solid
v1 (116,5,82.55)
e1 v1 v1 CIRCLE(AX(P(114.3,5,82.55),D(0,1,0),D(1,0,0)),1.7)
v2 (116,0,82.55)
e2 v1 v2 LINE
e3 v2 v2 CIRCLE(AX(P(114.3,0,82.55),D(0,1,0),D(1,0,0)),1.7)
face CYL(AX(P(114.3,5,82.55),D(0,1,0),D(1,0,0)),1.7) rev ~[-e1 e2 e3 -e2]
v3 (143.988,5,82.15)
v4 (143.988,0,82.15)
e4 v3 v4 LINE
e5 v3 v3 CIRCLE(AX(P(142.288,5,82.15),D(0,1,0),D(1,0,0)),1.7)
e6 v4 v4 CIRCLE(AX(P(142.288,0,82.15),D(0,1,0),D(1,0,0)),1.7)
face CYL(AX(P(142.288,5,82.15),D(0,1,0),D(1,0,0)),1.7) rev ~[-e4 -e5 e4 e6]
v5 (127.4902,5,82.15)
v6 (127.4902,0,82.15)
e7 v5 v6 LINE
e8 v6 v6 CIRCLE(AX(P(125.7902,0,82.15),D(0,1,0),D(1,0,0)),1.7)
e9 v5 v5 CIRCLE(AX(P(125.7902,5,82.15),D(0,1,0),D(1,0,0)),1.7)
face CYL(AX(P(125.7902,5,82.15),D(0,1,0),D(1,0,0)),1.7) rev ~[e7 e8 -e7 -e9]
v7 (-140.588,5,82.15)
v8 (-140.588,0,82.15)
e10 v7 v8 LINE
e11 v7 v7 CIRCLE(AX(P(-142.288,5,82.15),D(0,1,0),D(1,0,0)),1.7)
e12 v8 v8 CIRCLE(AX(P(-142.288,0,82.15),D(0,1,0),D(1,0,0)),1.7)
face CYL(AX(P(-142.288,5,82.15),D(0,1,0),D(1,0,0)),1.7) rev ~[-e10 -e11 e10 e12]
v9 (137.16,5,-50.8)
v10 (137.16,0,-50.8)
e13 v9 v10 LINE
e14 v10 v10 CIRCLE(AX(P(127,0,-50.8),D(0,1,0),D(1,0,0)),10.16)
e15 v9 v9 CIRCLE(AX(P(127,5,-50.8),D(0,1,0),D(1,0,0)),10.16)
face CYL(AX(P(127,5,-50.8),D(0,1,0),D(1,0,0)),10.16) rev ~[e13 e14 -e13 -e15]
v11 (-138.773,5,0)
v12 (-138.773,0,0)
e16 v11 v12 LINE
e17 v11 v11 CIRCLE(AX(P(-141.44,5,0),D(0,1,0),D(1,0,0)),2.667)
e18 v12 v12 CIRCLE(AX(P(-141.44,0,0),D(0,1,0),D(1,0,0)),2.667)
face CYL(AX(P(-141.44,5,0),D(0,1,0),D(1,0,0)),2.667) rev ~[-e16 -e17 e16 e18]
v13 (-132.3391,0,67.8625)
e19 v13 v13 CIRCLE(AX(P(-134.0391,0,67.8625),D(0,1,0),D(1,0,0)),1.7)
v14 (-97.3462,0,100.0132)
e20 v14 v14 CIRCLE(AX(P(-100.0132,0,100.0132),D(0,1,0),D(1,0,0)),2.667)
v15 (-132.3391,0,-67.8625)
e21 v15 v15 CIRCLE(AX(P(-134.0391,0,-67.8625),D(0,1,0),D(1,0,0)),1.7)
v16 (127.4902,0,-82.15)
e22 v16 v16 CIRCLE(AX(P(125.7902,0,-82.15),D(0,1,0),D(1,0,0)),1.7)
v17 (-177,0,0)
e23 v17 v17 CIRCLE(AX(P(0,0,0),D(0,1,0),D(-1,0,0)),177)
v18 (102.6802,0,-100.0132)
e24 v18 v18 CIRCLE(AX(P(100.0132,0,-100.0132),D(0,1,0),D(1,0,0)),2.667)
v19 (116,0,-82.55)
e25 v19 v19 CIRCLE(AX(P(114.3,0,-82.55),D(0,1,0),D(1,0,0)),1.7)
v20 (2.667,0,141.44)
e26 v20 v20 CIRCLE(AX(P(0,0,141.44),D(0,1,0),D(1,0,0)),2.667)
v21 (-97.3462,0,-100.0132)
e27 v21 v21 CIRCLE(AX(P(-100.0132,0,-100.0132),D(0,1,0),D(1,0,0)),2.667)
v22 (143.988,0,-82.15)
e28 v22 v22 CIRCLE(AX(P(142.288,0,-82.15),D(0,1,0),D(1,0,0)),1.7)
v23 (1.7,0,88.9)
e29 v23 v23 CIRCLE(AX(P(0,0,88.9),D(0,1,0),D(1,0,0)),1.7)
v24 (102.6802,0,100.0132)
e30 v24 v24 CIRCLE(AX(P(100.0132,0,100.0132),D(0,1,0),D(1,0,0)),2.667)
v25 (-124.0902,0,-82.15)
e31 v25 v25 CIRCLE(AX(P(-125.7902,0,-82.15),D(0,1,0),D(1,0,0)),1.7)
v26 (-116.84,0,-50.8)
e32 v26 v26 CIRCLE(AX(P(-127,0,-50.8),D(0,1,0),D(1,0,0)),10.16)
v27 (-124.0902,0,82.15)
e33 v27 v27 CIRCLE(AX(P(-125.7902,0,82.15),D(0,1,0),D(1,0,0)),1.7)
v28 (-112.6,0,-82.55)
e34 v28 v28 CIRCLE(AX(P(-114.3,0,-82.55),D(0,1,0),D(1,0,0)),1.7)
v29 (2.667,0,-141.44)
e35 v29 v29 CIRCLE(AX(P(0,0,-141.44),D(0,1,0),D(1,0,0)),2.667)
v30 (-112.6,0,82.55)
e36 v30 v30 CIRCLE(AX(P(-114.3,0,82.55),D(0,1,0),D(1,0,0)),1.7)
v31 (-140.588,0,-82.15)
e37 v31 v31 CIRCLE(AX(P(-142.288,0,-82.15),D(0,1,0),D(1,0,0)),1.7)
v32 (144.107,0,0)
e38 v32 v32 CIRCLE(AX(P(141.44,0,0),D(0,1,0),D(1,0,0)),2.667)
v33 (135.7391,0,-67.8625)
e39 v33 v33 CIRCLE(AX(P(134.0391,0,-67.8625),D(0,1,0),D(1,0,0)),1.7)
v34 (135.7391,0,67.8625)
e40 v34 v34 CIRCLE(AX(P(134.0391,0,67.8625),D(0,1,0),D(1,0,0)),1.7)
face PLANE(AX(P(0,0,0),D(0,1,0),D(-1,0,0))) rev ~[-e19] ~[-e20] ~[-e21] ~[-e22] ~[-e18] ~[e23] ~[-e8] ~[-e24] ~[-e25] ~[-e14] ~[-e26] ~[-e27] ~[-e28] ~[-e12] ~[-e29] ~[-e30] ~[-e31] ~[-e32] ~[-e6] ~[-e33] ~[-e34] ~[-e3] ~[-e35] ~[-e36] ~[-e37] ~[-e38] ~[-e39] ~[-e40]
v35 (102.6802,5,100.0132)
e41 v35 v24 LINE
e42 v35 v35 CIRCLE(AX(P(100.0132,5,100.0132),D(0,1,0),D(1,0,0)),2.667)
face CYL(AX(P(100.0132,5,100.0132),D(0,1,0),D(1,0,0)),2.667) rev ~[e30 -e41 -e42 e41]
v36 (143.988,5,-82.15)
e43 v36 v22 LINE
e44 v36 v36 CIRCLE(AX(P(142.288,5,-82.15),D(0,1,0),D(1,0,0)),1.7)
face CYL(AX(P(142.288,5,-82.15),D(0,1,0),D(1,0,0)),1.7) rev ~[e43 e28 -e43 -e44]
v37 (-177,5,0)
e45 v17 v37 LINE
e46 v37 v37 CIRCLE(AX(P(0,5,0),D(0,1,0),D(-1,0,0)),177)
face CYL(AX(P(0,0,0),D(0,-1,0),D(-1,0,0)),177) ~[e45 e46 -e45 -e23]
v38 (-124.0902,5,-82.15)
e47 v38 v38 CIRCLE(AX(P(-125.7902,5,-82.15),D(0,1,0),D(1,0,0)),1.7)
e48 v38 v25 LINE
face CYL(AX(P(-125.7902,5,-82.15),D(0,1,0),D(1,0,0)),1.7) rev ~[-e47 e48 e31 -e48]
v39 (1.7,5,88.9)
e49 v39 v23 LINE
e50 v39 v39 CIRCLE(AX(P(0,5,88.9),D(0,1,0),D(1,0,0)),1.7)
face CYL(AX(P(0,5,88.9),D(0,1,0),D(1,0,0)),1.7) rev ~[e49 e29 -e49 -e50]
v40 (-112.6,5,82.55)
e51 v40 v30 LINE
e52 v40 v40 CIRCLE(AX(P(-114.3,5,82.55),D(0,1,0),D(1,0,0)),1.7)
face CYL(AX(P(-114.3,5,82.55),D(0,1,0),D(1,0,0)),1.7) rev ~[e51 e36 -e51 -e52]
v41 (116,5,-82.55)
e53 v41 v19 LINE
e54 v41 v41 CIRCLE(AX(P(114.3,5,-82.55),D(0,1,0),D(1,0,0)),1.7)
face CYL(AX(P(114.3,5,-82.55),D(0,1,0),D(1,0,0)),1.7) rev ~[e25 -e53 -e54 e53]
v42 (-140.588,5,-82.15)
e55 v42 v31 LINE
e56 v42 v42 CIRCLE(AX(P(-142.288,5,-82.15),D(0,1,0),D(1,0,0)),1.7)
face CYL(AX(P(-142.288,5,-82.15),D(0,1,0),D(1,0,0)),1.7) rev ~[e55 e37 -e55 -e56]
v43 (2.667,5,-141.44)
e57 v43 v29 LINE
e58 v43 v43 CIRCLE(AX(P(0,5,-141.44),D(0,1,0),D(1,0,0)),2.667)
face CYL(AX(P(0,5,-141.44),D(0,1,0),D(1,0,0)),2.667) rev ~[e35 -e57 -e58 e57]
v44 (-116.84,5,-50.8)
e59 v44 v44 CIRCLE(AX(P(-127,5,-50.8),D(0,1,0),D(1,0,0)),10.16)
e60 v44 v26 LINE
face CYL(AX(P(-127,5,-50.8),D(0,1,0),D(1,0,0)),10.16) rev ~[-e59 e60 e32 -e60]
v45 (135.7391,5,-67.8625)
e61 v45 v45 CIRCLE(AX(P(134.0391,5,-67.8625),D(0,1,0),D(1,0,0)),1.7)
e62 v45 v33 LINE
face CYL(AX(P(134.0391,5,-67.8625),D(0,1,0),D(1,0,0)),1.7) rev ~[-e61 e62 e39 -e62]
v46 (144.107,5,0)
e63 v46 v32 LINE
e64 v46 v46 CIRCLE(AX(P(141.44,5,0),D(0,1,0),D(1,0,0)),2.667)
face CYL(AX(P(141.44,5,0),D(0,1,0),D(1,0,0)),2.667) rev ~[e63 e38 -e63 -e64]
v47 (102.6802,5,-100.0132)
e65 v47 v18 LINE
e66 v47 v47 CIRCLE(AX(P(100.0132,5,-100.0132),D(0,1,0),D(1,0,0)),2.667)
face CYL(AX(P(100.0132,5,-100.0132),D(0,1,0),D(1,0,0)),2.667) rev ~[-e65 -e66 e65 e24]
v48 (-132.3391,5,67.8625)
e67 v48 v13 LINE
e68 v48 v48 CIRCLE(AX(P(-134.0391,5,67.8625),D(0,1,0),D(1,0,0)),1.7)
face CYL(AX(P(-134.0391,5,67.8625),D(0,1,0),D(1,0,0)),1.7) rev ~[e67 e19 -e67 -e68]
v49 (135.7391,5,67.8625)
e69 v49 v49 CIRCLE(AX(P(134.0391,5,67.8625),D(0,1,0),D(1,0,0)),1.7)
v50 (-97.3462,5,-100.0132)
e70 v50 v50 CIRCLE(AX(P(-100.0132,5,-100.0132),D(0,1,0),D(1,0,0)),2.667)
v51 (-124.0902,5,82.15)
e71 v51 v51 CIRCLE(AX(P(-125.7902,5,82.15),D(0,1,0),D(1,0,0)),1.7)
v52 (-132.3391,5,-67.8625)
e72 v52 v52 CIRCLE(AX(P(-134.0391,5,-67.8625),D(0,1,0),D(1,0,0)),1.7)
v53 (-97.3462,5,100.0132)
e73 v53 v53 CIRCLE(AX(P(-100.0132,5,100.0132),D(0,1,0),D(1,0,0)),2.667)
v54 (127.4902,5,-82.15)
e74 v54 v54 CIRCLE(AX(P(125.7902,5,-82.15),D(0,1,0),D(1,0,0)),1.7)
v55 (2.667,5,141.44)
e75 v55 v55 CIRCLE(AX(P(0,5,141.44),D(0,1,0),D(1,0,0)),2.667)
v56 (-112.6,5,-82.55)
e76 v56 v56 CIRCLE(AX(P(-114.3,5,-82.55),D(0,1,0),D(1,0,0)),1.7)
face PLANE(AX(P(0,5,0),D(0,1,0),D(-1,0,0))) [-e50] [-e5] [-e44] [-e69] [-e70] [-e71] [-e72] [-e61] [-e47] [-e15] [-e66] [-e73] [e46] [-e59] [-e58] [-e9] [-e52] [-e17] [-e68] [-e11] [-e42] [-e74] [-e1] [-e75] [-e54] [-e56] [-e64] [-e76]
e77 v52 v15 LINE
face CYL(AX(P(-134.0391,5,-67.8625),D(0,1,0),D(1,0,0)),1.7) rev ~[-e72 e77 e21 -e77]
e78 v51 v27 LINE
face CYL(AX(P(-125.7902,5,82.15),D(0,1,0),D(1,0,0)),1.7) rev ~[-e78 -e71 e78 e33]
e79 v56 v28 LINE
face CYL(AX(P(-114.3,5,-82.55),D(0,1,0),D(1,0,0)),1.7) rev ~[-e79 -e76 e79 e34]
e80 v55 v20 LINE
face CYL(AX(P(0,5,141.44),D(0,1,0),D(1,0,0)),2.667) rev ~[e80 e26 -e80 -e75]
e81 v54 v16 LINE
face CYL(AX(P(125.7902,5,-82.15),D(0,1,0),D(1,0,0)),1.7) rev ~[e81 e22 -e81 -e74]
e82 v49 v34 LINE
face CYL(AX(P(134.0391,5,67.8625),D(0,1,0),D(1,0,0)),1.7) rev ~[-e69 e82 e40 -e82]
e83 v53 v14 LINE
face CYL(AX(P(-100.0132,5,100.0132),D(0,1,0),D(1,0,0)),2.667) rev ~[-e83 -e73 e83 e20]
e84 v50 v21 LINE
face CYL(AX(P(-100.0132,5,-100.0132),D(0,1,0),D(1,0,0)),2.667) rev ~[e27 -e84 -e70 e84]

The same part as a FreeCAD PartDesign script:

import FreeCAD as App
import Part
import Sketcher

V = App.Vector
Q = App.Units.Quantity

doc = App.newDocument("Part")
body = doc.addObject("PartDesign::Body", "Body")

sketch1 = doc.addObject("Sketcher::SketchObject", "Sketch")
body.addObject(sketch1)
sketch1.AttachmentSupport = (doc.XZ_Plane, [""])
sketch1.MapMode = "FlatFace"
sketch1.addGeometry(Part.Circle(V(0, 0, 0), V(0, 0, 1), 177), False)
sketch1.addConstraint([
    Sketcher.Constraint("Coincident", 0, 3, -1, 1),
    Sketcher.Constraint("Diameter", 0, Q("13.937 in")),
])
pad1 = doc.addObject("PartDesign::Pad", "Pad")
body.addObject(pad1)
pad1.Profile = sketch1
pad1.Length = 5
pad1.Reversed = True

sketch2 = doc.addObject("Sketcher::SketchObject", "Sketch001")
body.addObject(sketch2)
sketch2.AttachmentSupport = (doc.XZ_Plane, [""])
sketch2.MapMode = "FlatFace"
sketch2.AttachmentOffset = App.Placement(V(0, 0, -5), App.Rotation())
sketch2.addGeometry([
    Part.Circle(V(-114.3, -82.5, 0), V(0, 0, 1), 1.7),
    Part.Circle(V(114.3, -82.5, 0), V(0, 0, 1), 1.7),
    Part.Circle(V(-114.3, 82.5, 0), V(0, 0, 1), 1.7),
    Part.Circle(V(114.3, 82.5, 0), V(0, 0, 1), 1.7),
], False)
sketch2.addConstraint([
    Sketcher.Constraint("Equal", 0, 1),
    Sketcher.Constraint("Equal", 1, 2),
    Sketcher.Constraint("Equal", 2, 3),
    Sketcher.Constraint("Symmetric", 1, 3, 2, 3, -1, 1),
    Sketcher.Constraint("Symmetric", 0, 3, 3, 3, -1, 1),
    Sketcher.Constraint("Symmetric", 0, 3, 1, 3, -2),
    Sketcher.Constraint("DistanceX", 0, 3, 1, 3, Q("9 in")),
    Sketcher.Constraint("DistanceY", 0, 3, 2, 3, Q("6.5 in")),
    Sketcher.Constraint("Diameter", 0, 3.4),
])
pocket1 = doc.addObject("PartDesign::Pocket", "Pocket")
body.addObject(pocket1)
pocket1.Profile = sketch2
pocket1.Type = "ThroughAll"
pocket1.Reversed = True

sketch3 = doc.addObject("Sketcher::SketchObject", "Sketch002")
body.addObject(sketch3)
sketch3.AttachmentSupport = (doc.XZ_Plane, [""])
sketch3.MapMode = "FlatFace"
sketch3.AttachmentOffset = App.Placement(V(0, 0, -5), App.Rotation())
sketch3.addGeometry([
    Part.Circle(V(-127, -51, 0), V(0, 0, 1), 10),
    Part.Circle(V(127, -51, 0), V(0, 0, 1), 10),
], False)
sketch3.addConstraint([
    Sketcher.Constraint("Equal", 0, 1),
    Sketcher.Constraint("Symmetric", 0, 3, 1, 3, -2),
    Sketcher.Constraint("Diameter", 0, Q("0.8 in")),
    Sketcher.Constraint("DistanceX", 0, 3, -1, 1, Q("5 in")),
    Sketcher.Constraint("DistanceY", 0, 3, -1, 1, Q("2 in")),
])
pocket2 = doc.addObject("PartDesign::Pocket", "Pocket001")
body.addObject(pocket2)
pocket2.Profile = sketch3
pocket2.Type = "ThroughAll"
pocket2.Reversed = True

sketch4 = doc.addObject("Sketcher::SketchObject", "Sketch003")
body.addObject(sketch4)
sketch4.AttachmentSupport = (doc.XZ_Plane, [""])
sketch4.MapMode = "FlatFace"
sketch4.AttachmentOffset = App.Placement(V(0, 0, -5), App.Rotation())
sketch4.addGeometry([
    Part.Circle(V(142.3, 82.2, 0), V(0, 0, 1), 1.7),
    Part.Circle(V(134, 67.9, 0), V(0, 0, 1), 1.7),
    Part.Circle(V(125.8, 82.2, 0), V(0, 0, 1), 1.7),
    Part.Circle(V(125.8, -82.2, 0), V(0, 0, 1), 1.7),
    Part.Circle(V(142.3, -82.2, 0), V(0, 0, 1), 1.7),
    Part.Circle(V(134, -67.9, 0), V(0, 0, 1), 1.7),
    Part.Circle(V(-142.3, 82.2, 0), V(0, 0, 1), 1.7),
    Part.Circle(V(-134, 67.9, 0), V(0, 0, 1), 1.7),
    Part.Circle(V(-125.8, 82.2, 0), V(0, 0, 1), 1.7),
    Part.Circle(V(-125.8, -82.2, 0), V(0, 0, 1), 1.7),
    Part.Circle(V(-142.3, -82.2, 0), V(0, 0, 1), 1.7),
    Part.Circle(V(-134, -67.9, 0), V(0, 0, 1), 1.7),
], False)
sketch4.addConstraint([
    Sketcher.Constraint("Equal", 0, 1),
    Sketcher.Constraint("Equal", 1, 2),
    Sketcher.Constraint("Equal", 2, 3),
    Sketcher.Constraint("Equal", 3, 4),
    Sketcher.Constraint("Equal", 4, 5),
    Sketcher.Constraint("Equal", 5, 6),
    Sketcher.Constraint("Equal", 6, 7),
    Sketcher.Constraint("Equal", 7, 8),
    Sketcher.Constraint("Equal", 8, 9),
    Sketcher.Constraint("Equal", 9, 10),
    Sketcher.Constraint("Equal", 10, 11),
    Sketcher.Constraint("Symmetric", 4, 3, 6, 3, -1, 1),
    Sketcher.Constraint("Symmetric", 5, 3, 7, 3, -1, 1),
    Sketcher.Constraint("Symmetric", 3, 3, 8, 3, -1, 1),
    Sketcher.Constraint("Symmetric", 2, 3, 9, 3, -1, 1),
    Sketcher.Constraint("Symmetric", 0, 3, 10, 3, -1, 1),
    Sketcher.Constraint("Symmetric", 1, 3, 11, 3, -1, 1),
    Sketcher.Constraint("Symmetric", 0, 3, 6, 3, -2),
    Sketcher.Constraint("Symmetric", 1, 3, 7, 3, -2),
    Sketcher.Constraint("Symmetric", 2, 3, 8, 3, -2),
    Sketcher.Constraint("Horizontal", 0, 3, 2, 3),
    Sketcher.Constraint("Diameter", 0, 3.4),
    Sketcher.Constraint("DistanceY", 1, 3, 0, 3, Q("0.5625 in")),
    Sketcher.Constraint("DistanceY", 3, 3, 1, 3, Q("5.906 in")),
    Sketcher.Constraint("DistanceX", -1, 1, 0, 3, Q("5.6019 in")),
    Sketcher.Constraint("DistanceX", 7, 3, 2, 3, Q("10.2295 in")),
    Sketcher.Constraint("DistanceX", -1, 1, 1, 3, 134.039),
])
pocket3 = doc.addObject("PartDesign::Pocket", "Pocket002")
body.addObject(pocket3)
pocket3.Profile = sketch4
pocket3.Type = "ThroughAll"
pocket3.Reversed = True

sketch5 = doc.addObject("Sketcher::SketchObject", "Sketch004")
body.addObject(sketch5)
sketch5.AttachmentSupport = (doc.XZ_Plane, [""])
sketch5.MapMode = "FlatFace"
sketch5.AttachmentOffset = App.Placement(V(0, 0, -5), App.Rotation())
sketch5.addGeometry([
    Part.Circle(V(0, 141.4, 0), V(0, 0, 1), 2.7),
    Part.Circle(V(100, 100, 0), V(0, 0, 1), 2.7),
    Part.Circle(V(141.4, 0, 0), V(0, 0, 1), 2.7),
    Part.Circle(V(100, -100, 0), V(0, 0, 1), 2.7),
    Part.Circle(V(0, -141.4, 0), V(0, 0, 1), 2.7),
    Part.Circle(V(-100, -100, 0), V(0, 0, 1), 2.7),
    Part.Circle(V(-141.4, 0, 0), V(0, 0, 1), 2.7),
    Part.Circle(V(-100, 100, 0), V(0, 0, 1), 2.7),
], False)
sketch5.addConstraint([
    Sketcher.Constraint("Equal", 0, 1),
    Sketcher.Constraint("Equal", 1, 2),
    Sketcher.Constraint("Equal", 2, 3),
    Sketcher.Constraint("Equal", 3, 4),
    Sketcher.Constraint("Equal", 4, 5),
    Sketcher.Constraint("Equal", 5, 6),
    Sketcher.Constraint("Equal", 6, 7),
    Sketcher.Constraint("Symmetric", 0, 3, 4, 3, -1, 1),
    Sketcher.Constraint("Symmetric", 1, 3, 5, 3, -1, 1),
    Sketcher.Constraint("Symmetric", 2, 3, 6, 3, -1, 1),
    Sketcher.Constraint("Symmetric", 3, 3, 7, 3, -1, 1),
    Sketcher.Constraint("Symmetric", 3, 3, 5, 3, -2),
    Sketcher.Constraint("PointOnObject", 0, 3, -2),
    Sketcher.Constraint("PointOnObject", 2, 3, -1),
    Sketcher.Constraint("Diameter", 0, Q("0.21 in")),
    Sketcher.Constraint("DistanceY", 4, 3, 0, 3, Q("11.137 in")),
    Sketcher.Constraint("DistanceX", -1, 1, 2, 3, Q("5.5685 in")),
    Sketcher.Constraint("DistanceX", -1, 1, 1, 3, 100.0132),
    Sketcher.Constraint("DistanceY", -1, 1, 1, 3, 100.0132),
])
pocket4 = doc.addObject("PartDesign::Pocket", "Pocket003")
body.addObject(pocket4)
pocket4.Profile = sketch5
pocket4.Type = "ThroughAll"
pocket4.Reversed = True

sketch6 = doc.addObject("Sketcher::SketchObject", "Sketch005")
body.addObject(sketch6)
sketch6.AttachmentSupport = (doc.XZ_Plane, [""])
sketch6.MapMode = "FlatFace"
sketch6.AttachmentOffset = App.Placement(V(0, 0, -5), App.Rotation())
sketch6.addGeometry(Part.Circle(V(0, 88.9, 0), V(0, 0, 1), 1.7), False)
sketch6.addConstraint([
    Sketcher.Constraint("PointOnObject", 0, 3, -2),
    Sketcher.Constraint("DistanceY", -1, 1, 0, 3, Q("3.5 in")),
    Sketcher.Constraint("Diameter", 0, 3.4),
])
pocket5 = doc.addObject("PartDesign::Pocket", "Pocket004")
body.addObject(pocket5)
pocket5.Profile = sketch6
pocket5.Length = Q("1 in")
pocket5.Reversed = True

doc.recompute()
